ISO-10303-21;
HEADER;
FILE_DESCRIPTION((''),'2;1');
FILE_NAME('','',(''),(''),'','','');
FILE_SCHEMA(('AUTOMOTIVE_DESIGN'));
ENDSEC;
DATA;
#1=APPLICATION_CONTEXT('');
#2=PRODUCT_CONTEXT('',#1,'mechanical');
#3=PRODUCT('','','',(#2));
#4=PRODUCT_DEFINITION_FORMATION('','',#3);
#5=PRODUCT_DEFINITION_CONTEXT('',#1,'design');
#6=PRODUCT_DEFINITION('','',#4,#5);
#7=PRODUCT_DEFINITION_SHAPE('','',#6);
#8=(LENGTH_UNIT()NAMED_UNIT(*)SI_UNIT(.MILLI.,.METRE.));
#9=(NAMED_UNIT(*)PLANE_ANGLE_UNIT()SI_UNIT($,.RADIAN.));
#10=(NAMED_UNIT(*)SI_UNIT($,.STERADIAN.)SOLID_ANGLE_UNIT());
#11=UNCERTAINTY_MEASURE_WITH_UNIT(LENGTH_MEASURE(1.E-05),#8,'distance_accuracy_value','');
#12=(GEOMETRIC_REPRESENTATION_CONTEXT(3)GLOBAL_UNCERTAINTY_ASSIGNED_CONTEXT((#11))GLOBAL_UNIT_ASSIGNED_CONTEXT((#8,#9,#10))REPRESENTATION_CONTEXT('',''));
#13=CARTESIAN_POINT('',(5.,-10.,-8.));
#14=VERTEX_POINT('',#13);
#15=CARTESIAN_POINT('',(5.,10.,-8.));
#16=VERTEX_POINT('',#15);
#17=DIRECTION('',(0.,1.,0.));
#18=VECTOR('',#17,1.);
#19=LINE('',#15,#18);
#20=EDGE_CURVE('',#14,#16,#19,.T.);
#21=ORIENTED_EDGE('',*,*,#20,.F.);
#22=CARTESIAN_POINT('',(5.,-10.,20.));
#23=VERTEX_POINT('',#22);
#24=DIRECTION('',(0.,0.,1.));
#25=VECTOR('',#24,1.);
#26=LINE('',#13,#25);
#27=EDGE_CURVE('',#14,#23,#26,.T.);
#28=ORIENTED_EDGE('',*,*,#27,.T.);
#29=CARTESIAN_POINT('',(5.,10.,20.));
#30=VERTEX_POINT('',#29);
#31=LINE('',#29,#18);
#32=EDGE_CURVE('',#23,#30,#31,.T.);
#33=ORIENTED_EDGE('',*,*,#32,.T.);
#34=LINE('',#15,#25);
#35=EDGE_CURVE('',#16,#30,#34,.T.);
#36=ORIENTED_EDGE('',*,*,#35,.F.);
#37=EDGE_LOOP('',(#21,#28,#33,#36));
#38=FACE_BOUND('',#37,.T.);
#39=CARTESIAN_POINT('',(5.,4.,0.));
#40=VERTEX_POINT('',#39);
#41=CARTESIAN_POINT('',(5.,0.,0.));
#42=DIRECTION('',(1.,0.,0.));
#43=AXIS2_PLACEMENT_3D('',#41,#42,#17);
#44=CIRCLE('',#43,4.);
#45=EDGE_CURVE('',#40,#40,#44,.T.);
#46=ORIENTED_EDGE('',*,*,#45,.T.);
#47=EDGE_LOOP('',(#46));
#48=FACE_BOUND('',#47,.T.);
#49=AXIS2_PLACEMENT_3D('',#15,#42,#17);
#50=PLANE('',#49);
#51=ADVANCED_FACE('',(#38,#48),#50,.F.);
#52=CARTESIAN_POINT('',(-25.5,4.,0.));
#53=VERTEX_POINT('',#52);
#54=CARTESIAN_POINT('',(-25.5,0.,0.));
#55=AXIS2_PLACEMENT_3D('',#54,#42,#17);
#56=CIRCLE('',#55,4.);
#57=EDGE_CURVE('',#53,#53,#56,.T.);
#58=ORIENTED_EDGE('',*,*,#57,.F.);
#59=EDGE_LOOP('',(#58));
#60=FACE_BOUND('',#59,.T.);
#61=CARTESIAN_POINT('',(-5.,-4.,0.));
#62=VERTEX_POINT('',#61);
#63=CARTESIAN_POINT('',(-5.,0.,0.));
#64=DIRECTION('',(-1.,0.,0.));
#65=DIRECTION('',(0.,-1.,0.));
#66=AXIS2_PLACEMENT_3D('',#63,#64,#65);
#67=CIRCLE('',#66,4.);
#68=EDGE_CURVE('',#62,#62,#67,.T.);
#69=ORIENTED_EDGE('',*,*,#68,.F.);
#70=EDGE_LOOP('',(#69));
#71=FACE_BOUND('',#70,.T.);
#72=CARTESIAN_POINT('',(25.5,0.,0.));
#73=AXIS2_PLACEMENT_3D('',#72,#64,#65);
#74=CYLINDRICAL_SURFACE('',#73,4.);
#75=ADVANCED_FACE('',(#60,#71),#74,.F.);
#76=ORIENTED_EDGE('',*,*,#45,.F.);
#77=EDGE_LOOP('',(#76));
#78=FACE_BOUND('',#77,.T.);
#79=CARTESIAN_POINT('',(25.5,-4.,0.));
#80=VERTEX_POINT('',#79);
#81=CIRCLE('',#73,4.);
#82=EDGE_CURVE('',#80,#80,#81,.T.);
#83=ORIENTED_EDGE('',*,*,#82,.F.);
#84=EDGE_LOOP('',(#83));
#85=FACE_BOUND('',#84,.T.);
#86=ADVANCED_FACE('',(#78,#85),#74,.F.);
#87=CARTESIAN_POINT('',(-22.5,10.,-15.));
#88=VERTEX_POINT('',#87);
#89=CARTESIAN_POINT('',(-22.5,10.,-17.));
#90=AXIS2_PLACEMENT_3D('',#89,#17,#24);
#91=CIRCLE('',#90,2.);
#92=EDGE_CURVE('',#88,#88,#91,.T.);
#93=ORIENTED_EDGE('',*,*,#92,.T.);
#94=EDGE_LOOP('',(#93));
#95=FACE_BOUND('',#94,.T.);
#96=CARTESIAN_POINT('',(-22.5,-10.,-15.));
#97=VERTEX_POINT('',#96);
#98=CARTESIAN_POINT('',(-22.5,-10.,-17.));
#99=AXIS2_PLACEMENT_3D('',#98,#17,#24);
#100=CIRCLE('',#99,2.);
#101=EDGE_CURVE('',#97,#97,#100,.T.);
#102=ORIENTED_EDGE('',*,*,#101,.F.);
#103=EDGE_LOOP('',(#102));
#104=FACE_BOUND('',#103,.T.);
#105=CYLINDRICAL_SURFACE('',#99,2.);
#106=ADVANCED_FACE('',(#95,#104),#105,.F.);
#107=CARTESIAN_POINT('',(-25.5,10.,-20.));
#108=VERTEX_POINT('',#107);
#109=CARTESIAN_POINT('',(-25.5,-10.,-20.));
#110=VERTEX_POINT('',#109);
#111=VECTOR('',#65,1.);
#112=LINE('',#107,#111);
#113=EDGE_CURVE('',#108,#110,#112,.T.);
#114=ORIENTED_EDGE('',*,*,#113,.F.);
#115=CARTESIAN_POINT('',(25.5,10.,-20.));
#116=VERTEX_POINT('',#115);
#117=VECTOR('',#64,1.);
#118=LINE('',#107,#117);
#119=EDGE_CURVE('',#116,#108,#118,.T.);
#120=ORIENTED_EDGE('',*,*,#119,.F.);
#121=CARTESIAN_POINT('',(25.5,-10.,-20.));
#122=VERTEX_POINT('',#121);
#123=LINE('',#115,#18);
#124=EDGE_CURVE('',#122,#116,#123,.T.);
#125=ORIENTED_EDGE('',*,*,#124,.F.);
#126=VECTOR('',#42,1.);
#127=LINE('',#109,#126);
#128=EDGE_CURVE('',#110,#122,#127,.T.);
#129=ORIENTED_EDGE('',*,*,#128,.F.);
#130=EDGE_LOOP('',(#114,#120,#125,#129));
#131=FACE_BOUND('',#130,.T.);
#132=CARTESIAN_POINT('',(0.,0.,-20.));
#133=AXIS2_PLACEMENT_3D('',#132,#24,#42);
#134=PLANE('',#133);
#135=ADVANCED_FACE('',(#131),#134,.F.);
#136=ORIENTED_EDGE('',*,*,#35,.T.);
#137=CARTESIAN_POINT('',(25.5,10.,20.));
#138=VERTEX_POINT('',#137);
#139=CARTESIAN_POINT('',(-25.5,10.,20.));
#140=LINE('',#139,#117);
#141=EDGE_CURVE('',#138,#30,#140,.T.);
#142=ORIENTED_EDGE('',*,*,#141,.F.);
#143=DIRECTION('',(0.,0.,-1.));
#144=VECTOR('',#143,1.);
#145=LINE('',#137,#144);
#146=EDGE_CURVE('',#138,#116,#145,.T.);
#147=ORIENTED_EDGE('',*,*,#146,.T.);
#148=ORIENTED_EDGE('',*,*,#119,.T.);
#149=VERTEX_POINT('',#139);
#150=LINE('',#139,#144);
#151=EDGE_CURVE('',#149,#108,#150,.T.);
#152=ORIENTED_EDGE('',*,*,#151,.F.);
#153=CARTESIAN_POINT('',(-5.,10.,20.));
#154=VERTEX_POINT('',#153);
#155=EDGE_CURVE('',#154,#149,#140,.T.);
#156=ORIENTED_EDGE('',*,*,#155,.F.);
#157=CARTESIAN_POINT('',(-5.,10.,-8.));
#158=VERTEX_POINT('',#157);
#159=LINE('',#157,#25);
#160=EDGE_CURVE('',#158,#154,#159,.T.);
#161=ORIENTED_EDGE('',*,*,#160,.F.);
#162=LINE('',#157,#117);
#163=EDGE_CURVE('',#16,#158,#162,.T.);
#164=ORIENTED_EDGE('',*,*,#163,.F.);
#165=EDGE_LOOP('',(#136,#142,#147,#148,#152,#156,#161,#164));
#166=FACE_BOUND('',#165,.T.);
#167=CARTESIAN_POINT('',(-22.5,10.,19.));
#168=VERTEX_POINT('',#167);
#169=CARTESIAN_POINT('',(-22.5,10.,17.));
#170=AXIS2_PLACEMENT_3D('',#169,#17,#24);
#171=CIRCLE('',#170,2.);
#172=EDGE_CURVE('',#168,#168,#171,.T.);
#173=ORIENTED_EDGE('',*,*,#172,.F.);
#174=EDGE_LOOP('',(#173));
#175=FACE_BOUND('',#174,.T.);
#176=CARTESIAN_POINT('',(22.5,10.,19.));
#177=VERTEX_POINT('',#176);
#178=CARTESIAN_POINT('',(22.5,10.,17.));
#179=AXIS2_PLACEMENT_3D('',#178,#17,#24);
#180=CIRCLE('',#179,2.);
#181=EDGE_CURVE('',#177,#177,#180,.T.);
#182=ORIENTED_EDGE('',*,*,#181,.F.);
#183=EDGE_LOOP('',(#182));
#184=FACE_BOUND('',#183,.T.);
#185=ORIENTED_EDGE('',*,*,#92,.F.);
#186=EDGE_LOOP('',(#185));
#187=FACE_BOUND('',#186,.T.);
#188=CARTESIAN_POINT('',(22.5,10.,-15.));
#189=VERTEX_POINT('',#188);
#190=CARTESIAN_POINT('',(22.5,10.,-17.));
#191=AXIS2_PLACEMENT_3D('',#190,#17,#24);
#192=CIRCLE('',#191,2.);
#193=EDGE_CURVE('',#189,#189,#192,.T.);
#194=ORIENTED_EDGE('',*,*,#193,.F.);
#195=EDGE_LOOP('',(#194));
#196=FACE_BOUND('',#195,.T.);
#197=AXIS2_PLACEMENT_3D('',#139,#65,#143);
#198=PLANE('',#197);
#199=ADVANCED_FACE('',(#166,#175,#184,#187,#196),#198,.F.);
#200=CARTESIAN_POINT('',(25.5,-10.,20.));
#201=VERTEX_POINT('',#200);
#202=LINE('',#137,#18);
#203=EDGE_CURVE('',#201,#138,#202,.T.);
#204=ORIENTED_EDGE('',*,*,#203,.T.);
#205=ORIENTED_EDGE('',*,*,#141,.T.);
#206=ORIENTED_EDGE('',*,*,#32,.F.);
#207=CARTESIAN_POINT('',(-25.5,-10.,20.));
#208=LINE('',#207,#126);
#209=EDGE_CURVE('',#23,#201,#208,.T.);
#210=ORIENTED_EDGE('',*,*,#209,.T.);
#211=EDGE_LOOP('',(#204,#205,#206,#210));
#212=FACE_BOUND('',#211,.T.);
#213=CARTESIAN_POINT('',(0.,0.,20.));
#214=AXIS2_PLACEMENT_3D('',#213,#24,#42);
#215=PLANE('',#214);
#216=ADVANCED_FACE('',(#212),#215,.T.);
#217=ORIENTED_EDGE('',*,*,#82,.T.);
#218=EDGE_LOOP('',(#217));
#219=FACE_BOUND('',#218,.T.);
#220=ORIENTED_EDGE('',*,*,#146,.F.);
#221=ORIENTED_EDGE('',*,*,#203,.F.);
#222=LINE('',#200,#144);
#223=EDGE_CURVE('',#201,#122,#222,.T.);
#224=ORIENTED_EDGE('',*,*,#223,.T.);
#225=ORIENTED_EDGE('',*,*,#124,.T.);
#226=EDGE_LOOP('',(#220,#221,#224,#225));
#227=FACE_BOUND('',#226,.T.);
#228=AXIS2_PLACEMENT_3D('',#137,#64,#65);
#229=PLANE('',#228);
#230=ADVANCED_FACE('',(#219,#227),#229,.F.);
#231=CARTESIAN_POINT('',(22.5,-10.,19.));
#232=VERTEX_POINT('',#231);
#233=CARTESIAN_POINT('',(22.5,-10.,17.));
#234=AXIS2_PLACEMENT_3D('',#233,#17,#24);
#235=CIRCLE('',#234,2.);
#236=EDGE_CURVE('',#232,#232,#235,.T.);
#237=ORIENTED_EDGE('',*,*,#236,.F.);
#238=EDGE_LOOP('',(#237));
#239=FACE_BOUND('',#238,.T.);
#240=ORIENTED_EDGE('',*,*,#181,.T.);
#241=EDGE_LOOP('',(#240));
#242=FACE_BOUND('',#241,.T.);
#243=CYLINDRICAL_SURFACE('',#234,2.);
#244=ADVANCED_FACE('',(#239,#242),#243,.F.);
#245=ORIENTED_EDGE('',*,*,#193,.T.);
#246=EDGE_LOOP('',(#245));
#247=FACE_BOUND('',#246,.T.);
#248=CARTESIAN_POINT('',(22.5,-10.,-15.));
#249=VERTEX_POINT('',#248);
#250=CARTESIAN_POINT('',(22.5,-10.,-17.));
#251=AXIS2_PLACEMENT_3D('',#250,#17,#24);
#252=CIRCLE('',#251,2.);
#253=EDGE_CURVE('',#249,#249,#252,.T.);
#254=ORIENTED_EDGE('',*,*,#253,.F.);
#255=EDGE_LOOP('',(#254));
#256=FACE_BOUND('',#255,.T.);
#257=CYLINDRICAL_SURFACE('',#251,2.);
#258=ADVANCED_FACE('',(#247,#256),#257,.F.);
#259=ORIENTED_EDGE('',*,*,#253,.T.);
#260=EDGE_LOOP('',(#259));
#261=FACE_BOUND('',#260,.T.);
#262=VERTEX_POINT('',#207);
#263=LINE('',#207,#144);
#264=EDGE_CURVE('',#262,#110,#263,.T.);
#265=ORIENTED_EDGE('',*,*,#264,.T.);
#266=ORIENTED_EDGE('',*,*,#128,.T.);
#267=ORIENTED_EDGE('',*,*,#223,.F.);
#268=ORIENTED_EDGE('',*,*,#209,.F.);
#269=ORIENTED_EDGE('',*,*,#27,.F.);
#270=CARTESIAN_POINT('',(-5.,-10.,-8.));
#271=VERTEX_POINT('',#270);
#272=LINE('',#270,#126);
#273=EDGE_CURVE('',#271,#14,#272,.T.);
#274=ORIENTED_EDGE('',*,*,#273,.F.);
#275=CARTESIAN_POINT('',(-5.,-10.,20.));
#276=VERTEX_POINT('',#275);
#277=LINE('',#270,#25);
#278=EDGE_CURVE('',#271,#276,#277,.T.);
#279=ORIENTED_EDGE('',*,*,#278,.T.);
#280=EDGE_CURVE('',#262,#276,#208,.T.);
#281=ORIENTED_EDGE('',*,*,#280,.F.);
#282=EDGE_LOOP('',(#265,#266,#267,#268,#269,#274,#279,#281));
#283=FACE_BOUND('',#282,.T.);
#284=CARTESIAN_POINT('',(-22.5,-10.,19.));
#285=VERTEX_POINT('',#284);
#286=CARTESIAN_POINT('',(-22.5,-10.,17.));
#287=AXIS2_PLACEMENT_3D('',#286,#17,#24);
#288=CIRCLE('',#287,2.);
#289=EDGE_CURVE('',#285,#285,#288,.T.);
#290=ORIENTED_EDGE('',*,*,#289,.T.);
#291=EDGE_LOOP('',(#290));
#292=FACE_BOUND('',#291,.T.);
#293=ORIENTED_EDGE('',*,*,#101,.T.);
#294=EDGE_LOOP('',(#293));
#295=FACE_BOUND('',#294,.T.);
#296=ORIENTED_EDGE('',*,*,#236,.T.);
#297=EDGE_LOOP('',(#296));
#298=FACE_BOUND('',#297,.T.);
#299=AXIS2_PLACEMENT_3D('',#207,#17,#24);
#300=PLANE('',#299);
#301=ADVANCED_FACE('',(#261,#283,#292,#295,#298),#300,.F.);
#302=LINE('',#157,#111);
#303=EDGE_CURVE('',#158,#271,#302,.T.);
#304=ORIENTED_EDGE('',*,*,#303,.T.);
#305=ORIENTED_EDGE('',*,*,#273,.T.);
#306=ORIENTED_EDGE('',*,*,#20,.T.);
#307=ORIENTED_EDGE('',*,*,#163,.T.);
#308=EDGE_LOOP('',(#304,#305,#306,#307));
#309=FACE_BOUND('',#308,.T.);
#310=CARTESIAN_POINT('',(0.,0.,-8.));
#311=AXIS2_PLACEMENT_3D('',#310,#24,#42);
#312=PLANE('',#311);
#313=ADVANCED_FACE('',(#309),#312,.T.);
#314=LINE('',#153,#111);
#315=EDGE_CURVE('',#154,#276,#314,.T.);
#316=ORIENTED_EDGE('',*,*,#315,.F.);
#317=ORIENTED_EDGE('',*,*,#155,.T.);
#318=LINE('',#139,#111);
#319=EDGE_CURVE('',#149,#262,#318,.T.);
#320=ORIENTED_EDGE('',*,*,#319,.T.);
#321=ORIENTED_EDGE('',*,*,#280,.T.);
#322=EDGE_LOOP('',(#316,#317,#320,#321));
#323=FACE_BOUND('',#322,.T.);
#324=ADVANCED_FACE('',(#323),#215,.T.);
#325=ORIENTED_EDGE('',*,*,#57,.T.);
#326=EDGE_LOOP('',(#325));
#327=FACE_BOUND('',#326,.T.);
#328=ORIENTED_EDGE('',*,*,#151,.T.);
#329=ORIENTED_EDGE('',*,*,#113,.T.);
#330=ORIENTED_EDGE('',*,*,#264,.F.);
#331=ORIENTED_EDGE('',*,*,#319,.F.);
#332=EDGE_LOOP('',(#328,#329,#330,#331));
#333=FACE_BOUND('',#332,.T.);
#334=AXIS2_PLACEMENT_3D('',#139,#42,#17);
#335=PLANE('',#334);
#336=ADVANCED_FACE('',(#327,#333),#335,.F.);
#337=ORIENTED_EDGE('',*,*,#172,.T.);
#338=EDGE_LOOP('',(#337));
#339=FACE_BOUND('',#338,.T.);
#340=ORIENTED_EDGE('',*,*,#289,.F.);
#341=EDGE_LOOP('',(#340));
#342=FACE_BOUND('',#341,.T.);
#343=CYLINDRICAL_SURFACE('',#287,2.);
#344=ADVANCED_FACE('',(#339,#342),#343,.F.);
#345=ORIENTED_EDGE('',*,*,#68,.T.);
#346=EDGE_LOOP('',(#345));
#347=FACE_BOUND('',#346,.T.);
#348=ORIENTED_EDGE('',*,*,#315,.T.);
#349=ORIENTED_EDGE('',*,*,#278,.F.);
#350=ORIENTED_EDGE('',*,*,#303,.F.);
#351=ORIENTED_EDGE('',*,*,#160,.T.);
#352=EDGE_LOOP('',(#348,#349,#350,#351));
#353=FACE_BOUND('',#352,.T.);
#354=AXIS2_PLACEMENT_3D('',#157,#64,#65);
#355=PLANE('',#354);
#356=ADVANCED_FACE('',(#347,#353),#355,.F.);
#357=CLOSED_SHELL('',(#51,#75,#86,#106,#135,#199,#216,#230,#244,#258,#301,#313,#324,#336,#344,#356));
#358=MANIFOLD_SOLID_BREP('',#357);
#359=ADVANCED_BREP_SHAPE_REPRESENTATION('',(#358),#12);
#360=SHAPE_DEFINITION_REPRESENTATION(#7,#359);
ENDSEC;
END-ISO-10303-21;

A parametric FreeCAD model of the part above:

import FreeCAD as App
import Part
import Sketcher
from FreeCAD import Vector

doc = App.newDocument("Part")
params = doc.addObject("Spreadsheet::Sheet", "Params")
for row, (alias, value) in enumerate([
    ("sketch1_width", "51 mm"),
    ("sketch1_height", "20 mm"),
    ("pad1_length", "40 mm"),
    ("sketch2_width", "10 mm"),
    ("sketch2_height", "20 mm"),
    ("pocket1_length", "28 mm"),
    ("sketch3_diameter", "8 mm"),
    ("sketch4_diameter", "4 mm"),
], start=1):
    params.set(f"A{row}", alias)
    params.set(f"B{row}", "=" + value)
    params.setAlias(f"B{row}", alias)

body = doc.addObject("PartDesign::Body", "Body")

sketch1 = doc.addObject("Sketcher::SketchObject", "Sketch")
body.addObject(sketch1)
sketch1.AttachmentSupport = (doc.XY_Plane, [""])
sketch1.MapMode = "FlatFace"
sketch1.addGeometry([
    Part.LineSegment(Vector(-25.5, 10, 0), Vector(-25.5, -10, 0)),
    Part.LineSegment(Vector(-25.5, -10, 0), Vector(25.5, -10, 0)),
    Part.LineSegment(Vector(25.5, -10, 0), Vector(25.5, 10, 0)),
    Part.LineSegment(Vector(25.5, 10, 0), Vector(-25.5, 10, 0)),
], False)
sketch1.addConstraint([
    Sketcher.Constraint("Coincident", 0, 2, 1, 1),
    Sketcher.Constraint("Coincident", 1, 2, 2, 1),
    Sketcher.Constraint("Coincident", 2, 2, 3, 1),
    Sketcher.Constraint("Coincident", 3, 2, 0, 1),
    Sketcher.Constraint("Vertical", 0),
    Sketcher.Constraint("Horizontal", 1),
    Sketcher.Constraint("Vertical", 2),
    Sketcher.Constraint("Horizontal", 3),
    Sketcher.Constraint("Symmetric", 0, 2, 2, 2, -1, 1),
    Sketcher.Constraint("DistanceX", 1, 1, 1, 2, 51.0),
    Sketcher.Constraint("DistanceY", 0, 2, 0, 1, 20.0),
])
sketch1.setExpression("Constraints[9]", "Params.sketch1_width")
sketch1.setExpression("Constraints[10]", "Params.sketch1_height")
pad1 = doc.addObject("PartDesign::Pad", "Pad")
body.addObject(pad1)
pad1.Profile = sketch1
pad1.setExpression("Length", "Params.pad1_length")
pad1.Midplane = True

sketch2 = doc.addObject("Sketcher::SketchObject", "Sketch001")
body.addObject(sketch2)
sketch2.AttachmentSupport = (doc.XY_Plane, [""])
sketch2.MapMode = "FlatFace"
sketch2.AttachmentOffset = App.Placement(Vector(0, 0, 20), App.Rotation())
sketch2.addGeometry([
    Part.LineSegment(Vector(-5, 10, 0), Vector(-5, -10, 0)),
    Part.LineSegment(Vector(-5, -10, 0), Vector(5, -10, 0)),
    Part.LineSegment(Vector(5, -10, 0), Vector(5, 10, 0)),
    Part.LineSegment(Vector(5, 10, 0), Vector(-5, 10, 0)),
], False)
sketch2.addConstraint([
    Sketcher.Constraint("Coincident", 0, 2, 1, 1),
    Sketcher.Constraint("Coincident", 1, 2, 2, 1),
    Sketcher.Constraint("Coincident", 2, 2, 3, 1),
    Sketcher.Constraint("Coincident", 3, 2, 0, 1),
    Sketcher.Constraint("Vertical", 0),
    Sketcher.Constraint("Horizontal", 1),
    Sketcher.Constraint("Vertical", 2),
    Sketcher.Constraint("Horizontal", 3),
    Sketcher.Constraint("Symmetric", 0, 2, 2, 2, -1, 1),
    Sketcher.Constraint("DistanceX", 1, 1, 1, 2, 10.0),
    Sketcher.Constraint("DistanceY", 0, 2, 0, 1, 20.0),
])
sketch2.setExpression("Constraints[9]", "Params.sketch2_width")
sketch2.setExpression("Constraints[10]", "Params.sketch2_height")
pocket1 = doc.addObject("PartDesign::Pocket", "Pocket")
body.addObject(pocket1)
pocket1.Profile = sketch2
pocket1.setExpression("Length", "Params.pocket1_length")

sketch3 = doc.addObject("Sketcher::SketchObject", "Sketch002")
body.addObject(sketch3)
sketch3.AttachmentSupport = (doc.YZ_Plane, [""])
sketch3.MapMode = "FlatFace"
sketch3.AttachmentOffset = App.Placement(Vector(0, 0, -25.5), App.Rotation())
sketch3.addGeometry(Part.Circle(Vector(0, 0, 0), Vector(0, 0, 1), 4), False)
sketch3.addConstraint([
    Sketcher.Constraint("Coincident", 0, 3, -1, 1),
    Sketcher.Constraint("Diameter", 0, 8.0),
])
sketch3.setExpression("Constraints[1]", "Params.sketch3_diameter")
pocket2 = doc.addObject("PartDesign::Pocket", "Pocket001")
body.addObject(pocket2)
pocket2.Profile = sketch3
pocket2.Type = "ThroughAll"
pocket2.Midplane = True

sketch4 = doc.addObject("Sketcher::SketchObject", "Sketch003")
body.addObject(sketch4)
sketch4.AttachmentSupport = (doc.XZ_Plane, [""])
sketch4.MapMode = "FlatFace"
sketch4.AttachmentOffset = App.Placement(Vector(0, 0, -10), App.Rotation())
sketch4.addGeometry([
    Part.Circle(Vector(-22.5, -17, 0), Vector(0, 0, 1), 2),
    Part.Circle(Vector(22.5, 17, 0), Vector(0, 0, 1), 2),
    Part.Circle(Vector(22.5, -17, 0), Vector(0, 0, 1), 2),
    Part.Circle(Vector(-22.5, 17, 0), Vector(0, 0, 1), 2),
], False)
sketch4.addConstraint([
    Sketcher.Constraint("Equal", 0, 1),
    Sketcher.Constraint("Equal", 1, 2),
    Sketcher.Constraint("Equal", 2, 3),
    Sketcher.Constraint("Symmetric", 0, 3, 1, 3, -1, 1),
    Sketcher.Constraint("Symmetric", 2, 3, 3, 3, -1, 1),
    Sketcher.Constraint("Symmetric", 0, 3, 2, 3, -2),
    Sketcher.Constraint("Diameter", 0, 4.0),
    Sketcher.Constraint("DistanceY", 0, 3, -1, 1, 17.0),
    Sketcher.Constraint("DistanceX", 0, 3, 1, 3, 45.0),
])
sketch4.setExpression("Constraints[6]", "Params.sketch4_diameter")
pocket3 = doc.addObject("PartDesign::Pocket", "Pocket002")
body.addObject(pocket3)
pocket3.Profile = sketch4
pocket3.Type = "ThroughAll"
pocket3.Reversed = True

doc.recompute()
